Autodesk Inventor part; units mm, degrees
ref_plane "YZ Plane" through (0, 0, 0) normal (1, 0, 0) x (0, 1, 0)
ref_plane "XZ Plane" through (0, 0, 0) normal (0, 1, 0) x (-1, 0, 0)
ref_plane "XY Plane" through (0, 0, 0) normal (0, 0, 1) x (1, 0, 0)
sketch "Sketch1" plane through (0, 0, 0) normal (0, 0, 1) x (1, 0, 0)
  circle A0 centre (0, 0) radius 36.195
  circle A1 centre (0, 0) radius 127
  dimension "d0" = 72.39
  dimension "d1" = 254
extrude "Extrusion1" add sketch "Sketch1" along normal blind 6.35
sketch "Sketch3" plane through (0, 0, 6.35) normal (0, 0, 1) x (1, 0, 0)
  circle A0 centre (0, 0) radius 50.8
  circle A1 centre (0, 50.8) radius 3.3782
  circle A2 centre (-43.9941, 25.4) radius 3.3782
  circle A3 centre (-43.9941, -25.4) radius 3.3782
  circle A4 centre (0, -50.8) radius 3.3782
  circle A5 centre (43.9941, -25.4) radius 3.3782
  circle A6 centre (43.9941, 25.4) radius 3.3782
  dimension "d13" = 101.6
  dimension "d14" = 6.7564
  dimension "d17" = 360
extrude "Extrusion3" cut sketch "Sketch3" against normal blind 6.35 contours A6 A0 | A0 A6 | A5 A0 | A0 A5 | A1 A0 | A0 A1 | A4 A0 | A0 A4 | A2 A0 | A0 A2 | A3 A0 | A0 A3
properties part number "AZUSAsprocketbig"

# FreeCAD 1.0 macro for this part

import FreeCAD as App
import Part
import Sketcher

V = App.Vector
Q = App.Units.Quantity

doc = App.newDocument("Part")
body = doc.addObject("PartDesign::Body", "Body")

sketch1 = body.newObject("Sketcher::SketchObject", "Sketch")
sketch1.AttachmentSupport = (doc.getObject("XY_Plane"), [""])
sketch1.MapMode = "FlatFace"
sketch1.addGeometry([
    Part.Circle(V(0, 0, 0), V(0, 0, 1), 127),
    Part.Circle(V(0, 0, 0), V(0, 0, 1), 36),
], False)
sketch1.addConstraint([
    Sketcher.Constraint("Coincident", 0, 3, -1, 1),
    Sketcher.Constraint("Coincident", 1, 3, -1, 1),
    Sketcher.Constraint("Diameter", 0, Q("10 in")),
    Sketcher.Constraint("Diameter", 1, Q("2.85 in")),
])
pad1 = body.newObject("PartDesign::Pad", "Pad")
pad1.Profile = sketch1
pad1.Length = Q("0.25 in")

sketch2 = body.newObject("Sketcher::SketchObject", "Sketch001")
sketch2.AttachmentSupport = (doc.getObject("XY_Plane"), [""])
sketch2.MapMode = "FlatFace"
sketch2.AttachmentOffset = App.Placement(V(0, 0, 0.25 * 25.4), App.Rotation())
sketch2.addGeometry([
    Part.Circle(V(44, 25.4, 0), V(0, 0, 1), 3.4),
    Part.Circle(V(44, -25.4, 0), V(0, 0, 1), 3.4),
    Part.Circle(V(0, 50.8, 0), V(0, 0, 1), 3.4),
    Part.Circle(V(0, -50.8, 0), V(0, 0, 1), 3.4),
    Part.Circle(V(-44, 25.4, 0), V(0, 0, 1), 3.4),
    Part.Circle(V(-44, -25.4, 0), V(0, 0, 1), 3.4),
], False)
sketch2.addConstraint([
    Sketcher.Constraint("Equal", 0, 1),
    Sketcher.Constraint("Equal", 1, 2),
    Sketcher.Constraint("Equal", 2, 3),
    Sketcher.Constraint("Equal", 3, 4),
    Sketcher.Constraint("Equal", 4, 5),
    Sketcher.Constraint("Symmetric", 2, 3, 3, 3, -1, 1),
    Sketcher.Constraint("Symmetric", 1, 3, 4, 3, -1, 1),
    Sketcher.Constraint("Symmetric", 0, 3, 5, 3, -1, 1),
    Sketcher.Constraint("Symmetric", 0, 3, 4, 3, -2),
    Sketcher.Constraint("PointOnObject", 2, 3, -2),
    Sketcher.Constraint("Diameter", 0, Q("0.266 in")),
    Sketcher.Constraint("DistanceY", 3, 3, 2, 3, Q("4 in")),
    Sketcher.Constraint("DistanceY", -1, 1, 0, 3, Q("1 in")),
    Sketcher.Constraint("DistanceX", 4, 3, 0, 3, Q("3.4641 in")),
])
pocket1 = body.newObject("PartDesign::Pocket", "Pocket")
pocket1.Profile = sketch2
pocket1.Length = Q("0.25 in")

doc.recompute()
